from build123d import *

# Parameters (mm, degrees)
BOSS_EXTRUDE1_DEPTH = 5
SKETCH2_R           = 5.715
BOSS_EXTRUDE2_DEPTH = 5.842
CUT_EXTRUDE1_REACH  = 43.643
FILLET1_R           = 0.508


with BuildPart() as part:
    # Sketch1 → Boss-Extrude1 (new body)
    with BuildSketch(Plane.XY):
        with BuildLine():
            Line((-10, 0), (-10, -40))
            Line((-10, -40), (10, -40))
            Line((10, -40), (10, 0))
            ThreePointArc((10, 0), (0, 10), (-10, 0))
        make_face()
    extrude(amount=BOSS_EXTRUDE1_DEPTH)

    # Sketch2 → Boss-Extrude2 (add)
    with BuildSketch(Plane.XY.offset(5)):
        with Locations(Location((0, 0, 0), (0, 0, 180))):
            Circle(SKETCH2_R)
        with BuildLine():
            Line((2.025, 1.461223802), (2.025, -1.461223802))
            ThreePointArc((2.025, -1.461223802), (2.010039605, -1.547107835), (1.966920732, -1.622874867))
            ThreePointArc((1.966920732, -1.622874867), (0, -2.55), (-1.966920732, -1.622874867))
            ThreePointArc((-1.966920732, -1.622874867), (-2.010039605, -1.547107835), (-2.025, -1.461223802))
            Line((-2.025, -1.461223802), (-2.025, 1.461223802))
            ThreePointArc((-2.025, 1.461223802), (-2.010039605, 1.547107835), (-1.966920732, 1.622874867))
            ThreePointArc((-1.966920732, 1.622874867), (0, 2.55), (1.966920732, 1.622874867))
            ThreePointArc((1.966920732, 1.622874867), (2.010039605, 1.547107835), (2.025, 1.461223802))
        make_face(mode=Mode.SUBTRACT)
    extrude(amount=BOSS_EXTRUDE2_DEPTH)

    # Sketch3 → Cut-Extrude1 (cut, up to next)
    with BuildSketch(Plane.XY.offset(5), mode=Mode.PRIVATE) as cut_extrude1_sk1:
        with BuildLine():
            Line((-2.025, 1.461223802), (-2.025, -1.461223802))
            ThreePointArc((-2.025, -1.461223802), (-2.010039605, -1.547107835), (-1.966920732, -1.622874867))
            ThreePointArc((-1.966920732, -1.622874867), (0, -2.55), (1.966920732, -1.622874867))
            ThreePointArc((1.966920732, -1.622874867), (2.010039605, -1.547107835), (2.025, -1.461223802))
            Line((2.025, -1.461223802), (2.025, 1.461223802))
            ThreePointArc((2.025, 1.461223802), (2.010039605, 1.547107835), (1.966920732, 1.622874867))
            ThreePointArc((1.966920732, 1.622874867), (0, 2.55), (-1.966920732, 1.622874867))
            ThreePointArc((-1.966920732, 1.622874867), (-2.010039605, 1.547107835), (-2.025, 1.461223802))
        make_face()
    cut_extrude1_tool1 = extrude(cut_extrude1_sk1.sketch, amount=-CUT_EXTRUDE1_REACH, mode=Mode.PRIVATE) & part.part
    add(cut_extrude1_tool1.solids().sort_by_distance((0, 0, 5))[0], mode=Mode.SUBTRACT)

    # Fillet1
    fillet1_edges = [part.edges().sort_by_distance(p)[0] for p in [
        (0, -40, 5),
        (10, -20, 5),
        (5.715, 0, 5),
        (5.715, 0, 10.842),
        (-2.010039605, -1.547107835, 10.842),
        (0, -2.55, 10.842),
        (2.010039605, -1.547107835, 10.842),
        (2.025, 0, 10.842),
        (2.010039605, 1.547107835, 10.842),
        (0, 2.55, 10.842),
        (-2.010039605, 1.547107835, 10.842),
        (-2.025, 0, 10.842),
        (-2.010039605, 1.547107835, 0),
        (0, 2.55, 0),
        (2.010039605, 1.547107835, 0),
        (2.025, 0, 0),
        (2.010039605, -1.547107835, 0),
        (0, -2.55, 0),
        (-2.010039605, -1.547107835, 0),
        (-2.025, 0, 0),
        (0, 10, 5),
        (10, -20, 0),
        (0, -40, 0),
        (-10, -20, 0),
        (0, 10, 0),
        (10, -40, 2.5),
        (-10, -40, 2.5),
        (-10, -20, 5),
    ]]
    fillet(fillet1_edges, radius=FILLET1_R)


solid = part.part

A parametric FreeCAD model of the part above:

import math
import FreeCAD as App
import Part
import Sketcher
from FreeCAD import Vector
Q = App.Units.Quantity

doc = App.newDocument("Part")
body = doc.addObject("PartDesign::Body", "Body")

sketch1 = body.newObject("Sketcher::SketchObject", "Sketch")
sketch1.AttachmentSupport = (doc.getObject("XY_Plane"), [""])
sketch1.MapMode = "FlatFace"
sketch1.addGeometry(Part.LineSegment(Vector(-10, 0, 0), Vector(-10, -40, 0)), False)
sketch1.addGeometry(Part.LineSegment(Vector(-10, -40, 0), Vector(10, -40, 0)), False)
sketch1.addGeometry(Part.LineSegment(Vector(10, -40, 0), Vector(10, 0, 0)), False)
sketch1.addGeometry(Part.ArcOfCircle(Part.Circle(Vector(0, 0, 0), Vector(0, 0, 1), 10), math.radians(0), math.radians(180)), False)
sketch1.addConstraint(Sketcher.Constraint("Coincident", 0, 2, 1, 1))
sketch1.addConstraint(Sketcher.Constraint("Coincident", 1, 2, 2, 1))
sketch1.addConstraint(Sketcher.Constraint("Tangent", 2, 2, 3, 1))
sketch1.addConstraint(Sketcher.Constraint("Tangent", 3, 2, 0, 1))
sketch1.addConstraint(Sketcher.Constraint("Vertical", 0))
sketch1.addConstraint(Sketcher.Constraint("Horizontal", 1))
sketch1.addConstraint(Sketcher.Constraint("Vertical", 2))
sketch1.addConstraint(Sketcher.Constraint("Coincident", 3, 3, -1, 1))
sketch1.addConstraint(Sketcher.Constraint("Radius", 3, Q("10 mm")))
sketch1.addConstraint(Sketcher.Constraint("DistanceY", 0, 2, 0, 1, Q("40 mm")))
pad1 = body.newObject("PartDesign::Pad", "Pad")
pad1.Profile = sketch1
pad1.Length = 5

sketch2 = body.newObject("Sketcher::SketchObject", "Sketch001")
sketch2.AttachmentSupport = (doc.getObject("XY_Plane"), [""])
sketch2.MapMode = "FlatFace"
sketch2.AttachmentOffset = App.Placement(Vector(0, 0, 5), App.Rotation())
sketch2.addGeometry(Part.Circle(Vector(0, 0, 0), Vector(0, 0, 1), 5.71), False)
sketch2.addGeometry(Part.ArcOfCircle(Part.Circle(Vector(1.77, 1.46, 0), Vector(0, 0, 1), 0.25), math.radians(0), math.radians(40)), False)
sketch2.addGeometry(Part.LineSegment(Vector(2.02, 1.46, 0), Vector(2.02, -1.46, 0)), False)
sketch2.addGeometry(Part.ArcOfCircle(Part.Circle(Vector(1.77, -1.46, 0), Vector(0, 0, 1), 0.25), math.radians(-40), math.radians(0)), False)
sketch2.addGeometry(Part.ArcOfCircle(Part.Circle(Vector(0, 0, 0), Vector(0, 0, 1), 2.55), math.radians(-140), math.radians(-40)), False)
sketch2.addGeometry(Part.ArcOfCircle(Part.Circle(Vector(-1.77, -1.46, 0), Vector(0, 0, 1), 0.25), math.radians(-180), math.radians(-140)), False)
sketch2.addGeometry(Part.LineSegment(Vector(-2.02, -1.46, 0), Vector(-2.02, 1.46, 0)), False)
sketch2.addGeometry(Part.ArcOfCircle(Part.Circle(Vector(-1.77, 1.46, 0), Vector(0, 0, 1), 0.25), math.radians(140), math.radians(180)), False)
sketch2.addGeometry(Part.ArcOfCircle(Part.Circle(Vector(0, 0, 0), Vector(0, 0, 1), 2.55), math.radians(40), math.radians(140)), False)
sketch2.addConstraint(Sketcher.Constraint("Tangent", 1, 1, 2, 1))
sketch2.addConstraint(Sketcher.Constraint("Tangent", 2, 2, 3, 2))
sketch2.addConstraint(Sketcher.Constraint("Tangent", 3, 1, 4, 2))
sketch2.addConstraint(Sketcher.Constraint("Tangent", 4, 1, 5, 2))
sketch2.addConstraint(Sketcher.Constraint("Tangent", 5, 1, 6, 1))
sketch2.addConstraint(Sketcher.Constraint("Tangent", 6, 2, 7, 2))
sketch2.addConstraint(Sketcher.Constraint("Tangent", 7, 1, 8, 2))
sketch2.addConstraint(Sketcher.Constraint("Tangent", 8, 1, 1, 2))
sketch2.addConstraint(Sketcher.Constraint("Vertical", 2))
sketch2.addConstraint(Sketcher.Constraint("Vertical", 6))
sketch2.addConstraint(Sketcher.Constraint("Coincident", 0, 3, -1, 1))
sketch2.addConstraint(Sketcher.Constraint("Coincident", 4, 3, -1, 1))
sketch2.addConstraint(Sketcher.Constraint("Coincident", 8, 3, -1, 1))
sketch2.addConstraint(Sketcher.Constraint("Equal", 1, 3))
sketch2.addConstraint(Sketcher.Constraint("Equal", 3, 5))
sketch2.addConstraint(Sketcher.Constraint("Equal", 5, 7))
sketch2.addConstraint(Sketcher.Constraint("Equal", 4, 8))
sketch2.addConstraint(Sketcher.Constraint("Horizontal", 3, 3, 5, 3))
sketch2.addConstraint(Sketcher.Constraint("Diameter", 0, Q("11.43 mm")))
sketch2.addConstraint(Sketcher.Constraint("Radius", 4, Q("2.55 mm")))
sketch2.addConstraint(Sketcher.Constraint("Radius", 1, Q("0.254 mm")))
sketch2.addConstraint(Sketcher.Constraint("DistanceX", -1, 1, 1, 3, Q("1.771 mm")))
pad2 = body.newObject("PartDesign::Pad", "Pad001")
pad2.Profile = sketch2
pad2.Length = 5.842

sketch3 = body.newObject("Sketcher::SketchObject", "Sketch002")
sketch3.AttachmentSupport = (doc.getObject("XY_Plane"), [""])
sketch3.MapMode = "FlatFace"
sketch3.AttachmentOffset = App.Placement(Vector(0, 0, 5), App.Rotation())
sketch3.addGeometry(Part.LineSegment(Vector(-2.02, 1.46, 0), Vector(-2.02, -1.46, 0)), False)
sketch3.addGeometry(Part.ArcOfCircle(Part.Circle(Vector(-1.77, -1.46, 0), Vector(0, 0, 1), 0.25), math.radians(-180), math.radians(-140)), False)
sketch3.addGeometry(Part.ArcOfCircle(Part.Circle(Vector(0, 0, 0), Vector(0, 0, 1), 2.55), math.radians(-140), math.radians(-40)), False)
sketch3.addGeometry(Part.ArcOfCircle(Part.Circle(Vector(1.77, -1.46, 0), Vector(0, 0, 1), 0.25), math.radians(-40), math.radians(0)), False)
sketch3.addGeometry(Part.LineSegment(Vector(2.02, -1.46, 0), Vector(2.02, 1.46, 0)), False)
sketch3.addGeometry(Part.ArcOfCircle(Part.Circle(Vector(1.77, 1.46, 0), Vector(0, 0, 1), 0.25), math.radians(0), math.radians(40)), False)
sketch3.addGeometry(Part.ArcOfCircle(Part.Circle(Vector(0, 0, 0), Vector(0, 0, 1), 2.55), math.radians(40), math.radians(140)), False)
sketch3.addGeometry(Part.ArcOfCircle(Part.Circle(Vector(-1.77, 1.46, 0), Vector(0, 0, 1), 0.25), math.radians(140), math.radians(180)), False)
sketch3.addConstraint(Sketcher.Constraint("Tangent", 0, 2, 1, 1))
sketch3.addConstraint(Sketcher.Constraint("Tangent", 1, 2, 2, 1))
sketch3.addConstraint(Sketcher.Constraint("Tangent", 2, 2, 3, 1))
sketch3.addConstraint(Sketcher.Constraint("Tangent", 3, 2, 4, 1))
sketch3.addConstraint(Sketcher.Constraint("Tangent", 4, 2, 5, 1))
sketch3.addConstraint(Sketcher.Constraint("Tangent", 5, 2, 6, 1))
sketch3.addConstraint(Sketcher.Constraint("Tangent", 6, 2, 7, 1))
sketch3.addConstraint(Sketcher.Constraint("Tangent", 7, 2, 0, 1))
sketch3.addConstraint(Sketcher.Constraint("Vertical", 0))
sketch3.addConstraint(Sketcher.Constraint("Vertical", 4))
sketch3.addConstraint(Sketcher.Constraint("Coincident", 2, 3, -1, 1))
sketch3.addConstraint(Sketcher.Constraint("Coincident", 6, 3, -1, 1))
sketch3.addConstraint(Sketcher.Constraint("Equal", 1, 3))
sketch3.addConstraint(Sketcher.Constraint("Equal", 3, 5))
sketch3.addConstraint(Sketcher.Constraint("Equal", 2, 6))
sketch3.addConstraint(Sketcher.Constraint("Equal", 5, 7))
sketch3.addConstraint(Sketcher.Constraint("Horizontal", 1, 3, 3, 3))
sketch3.addConstraint(Sketcher.Constraint("Radius", 2, Q("2.55 mm")))
sketch3.addConstraint(Sketcher.Constraint("Radius", 1, Q("0.254 mm")))
sketch3.addConstraint(Sketcher.Constraint("DistanceX", 1, 3, -1, 1, Q("1.771 mm")))
pocket1 = body.newObject("PartDesign::Pocket", "Pocket")
pocket1.Profile = sketch3
pocket1.Type = "UpToFirst"
doc.recompute()

fillet = body.newObject("PartDesign::Fillet", "Fillet")
fillet.Base = (pocket1, ["Edge1"])
fillet.UseAllEdges = True
fillet.Radius = 0.508

doc.recompute()
